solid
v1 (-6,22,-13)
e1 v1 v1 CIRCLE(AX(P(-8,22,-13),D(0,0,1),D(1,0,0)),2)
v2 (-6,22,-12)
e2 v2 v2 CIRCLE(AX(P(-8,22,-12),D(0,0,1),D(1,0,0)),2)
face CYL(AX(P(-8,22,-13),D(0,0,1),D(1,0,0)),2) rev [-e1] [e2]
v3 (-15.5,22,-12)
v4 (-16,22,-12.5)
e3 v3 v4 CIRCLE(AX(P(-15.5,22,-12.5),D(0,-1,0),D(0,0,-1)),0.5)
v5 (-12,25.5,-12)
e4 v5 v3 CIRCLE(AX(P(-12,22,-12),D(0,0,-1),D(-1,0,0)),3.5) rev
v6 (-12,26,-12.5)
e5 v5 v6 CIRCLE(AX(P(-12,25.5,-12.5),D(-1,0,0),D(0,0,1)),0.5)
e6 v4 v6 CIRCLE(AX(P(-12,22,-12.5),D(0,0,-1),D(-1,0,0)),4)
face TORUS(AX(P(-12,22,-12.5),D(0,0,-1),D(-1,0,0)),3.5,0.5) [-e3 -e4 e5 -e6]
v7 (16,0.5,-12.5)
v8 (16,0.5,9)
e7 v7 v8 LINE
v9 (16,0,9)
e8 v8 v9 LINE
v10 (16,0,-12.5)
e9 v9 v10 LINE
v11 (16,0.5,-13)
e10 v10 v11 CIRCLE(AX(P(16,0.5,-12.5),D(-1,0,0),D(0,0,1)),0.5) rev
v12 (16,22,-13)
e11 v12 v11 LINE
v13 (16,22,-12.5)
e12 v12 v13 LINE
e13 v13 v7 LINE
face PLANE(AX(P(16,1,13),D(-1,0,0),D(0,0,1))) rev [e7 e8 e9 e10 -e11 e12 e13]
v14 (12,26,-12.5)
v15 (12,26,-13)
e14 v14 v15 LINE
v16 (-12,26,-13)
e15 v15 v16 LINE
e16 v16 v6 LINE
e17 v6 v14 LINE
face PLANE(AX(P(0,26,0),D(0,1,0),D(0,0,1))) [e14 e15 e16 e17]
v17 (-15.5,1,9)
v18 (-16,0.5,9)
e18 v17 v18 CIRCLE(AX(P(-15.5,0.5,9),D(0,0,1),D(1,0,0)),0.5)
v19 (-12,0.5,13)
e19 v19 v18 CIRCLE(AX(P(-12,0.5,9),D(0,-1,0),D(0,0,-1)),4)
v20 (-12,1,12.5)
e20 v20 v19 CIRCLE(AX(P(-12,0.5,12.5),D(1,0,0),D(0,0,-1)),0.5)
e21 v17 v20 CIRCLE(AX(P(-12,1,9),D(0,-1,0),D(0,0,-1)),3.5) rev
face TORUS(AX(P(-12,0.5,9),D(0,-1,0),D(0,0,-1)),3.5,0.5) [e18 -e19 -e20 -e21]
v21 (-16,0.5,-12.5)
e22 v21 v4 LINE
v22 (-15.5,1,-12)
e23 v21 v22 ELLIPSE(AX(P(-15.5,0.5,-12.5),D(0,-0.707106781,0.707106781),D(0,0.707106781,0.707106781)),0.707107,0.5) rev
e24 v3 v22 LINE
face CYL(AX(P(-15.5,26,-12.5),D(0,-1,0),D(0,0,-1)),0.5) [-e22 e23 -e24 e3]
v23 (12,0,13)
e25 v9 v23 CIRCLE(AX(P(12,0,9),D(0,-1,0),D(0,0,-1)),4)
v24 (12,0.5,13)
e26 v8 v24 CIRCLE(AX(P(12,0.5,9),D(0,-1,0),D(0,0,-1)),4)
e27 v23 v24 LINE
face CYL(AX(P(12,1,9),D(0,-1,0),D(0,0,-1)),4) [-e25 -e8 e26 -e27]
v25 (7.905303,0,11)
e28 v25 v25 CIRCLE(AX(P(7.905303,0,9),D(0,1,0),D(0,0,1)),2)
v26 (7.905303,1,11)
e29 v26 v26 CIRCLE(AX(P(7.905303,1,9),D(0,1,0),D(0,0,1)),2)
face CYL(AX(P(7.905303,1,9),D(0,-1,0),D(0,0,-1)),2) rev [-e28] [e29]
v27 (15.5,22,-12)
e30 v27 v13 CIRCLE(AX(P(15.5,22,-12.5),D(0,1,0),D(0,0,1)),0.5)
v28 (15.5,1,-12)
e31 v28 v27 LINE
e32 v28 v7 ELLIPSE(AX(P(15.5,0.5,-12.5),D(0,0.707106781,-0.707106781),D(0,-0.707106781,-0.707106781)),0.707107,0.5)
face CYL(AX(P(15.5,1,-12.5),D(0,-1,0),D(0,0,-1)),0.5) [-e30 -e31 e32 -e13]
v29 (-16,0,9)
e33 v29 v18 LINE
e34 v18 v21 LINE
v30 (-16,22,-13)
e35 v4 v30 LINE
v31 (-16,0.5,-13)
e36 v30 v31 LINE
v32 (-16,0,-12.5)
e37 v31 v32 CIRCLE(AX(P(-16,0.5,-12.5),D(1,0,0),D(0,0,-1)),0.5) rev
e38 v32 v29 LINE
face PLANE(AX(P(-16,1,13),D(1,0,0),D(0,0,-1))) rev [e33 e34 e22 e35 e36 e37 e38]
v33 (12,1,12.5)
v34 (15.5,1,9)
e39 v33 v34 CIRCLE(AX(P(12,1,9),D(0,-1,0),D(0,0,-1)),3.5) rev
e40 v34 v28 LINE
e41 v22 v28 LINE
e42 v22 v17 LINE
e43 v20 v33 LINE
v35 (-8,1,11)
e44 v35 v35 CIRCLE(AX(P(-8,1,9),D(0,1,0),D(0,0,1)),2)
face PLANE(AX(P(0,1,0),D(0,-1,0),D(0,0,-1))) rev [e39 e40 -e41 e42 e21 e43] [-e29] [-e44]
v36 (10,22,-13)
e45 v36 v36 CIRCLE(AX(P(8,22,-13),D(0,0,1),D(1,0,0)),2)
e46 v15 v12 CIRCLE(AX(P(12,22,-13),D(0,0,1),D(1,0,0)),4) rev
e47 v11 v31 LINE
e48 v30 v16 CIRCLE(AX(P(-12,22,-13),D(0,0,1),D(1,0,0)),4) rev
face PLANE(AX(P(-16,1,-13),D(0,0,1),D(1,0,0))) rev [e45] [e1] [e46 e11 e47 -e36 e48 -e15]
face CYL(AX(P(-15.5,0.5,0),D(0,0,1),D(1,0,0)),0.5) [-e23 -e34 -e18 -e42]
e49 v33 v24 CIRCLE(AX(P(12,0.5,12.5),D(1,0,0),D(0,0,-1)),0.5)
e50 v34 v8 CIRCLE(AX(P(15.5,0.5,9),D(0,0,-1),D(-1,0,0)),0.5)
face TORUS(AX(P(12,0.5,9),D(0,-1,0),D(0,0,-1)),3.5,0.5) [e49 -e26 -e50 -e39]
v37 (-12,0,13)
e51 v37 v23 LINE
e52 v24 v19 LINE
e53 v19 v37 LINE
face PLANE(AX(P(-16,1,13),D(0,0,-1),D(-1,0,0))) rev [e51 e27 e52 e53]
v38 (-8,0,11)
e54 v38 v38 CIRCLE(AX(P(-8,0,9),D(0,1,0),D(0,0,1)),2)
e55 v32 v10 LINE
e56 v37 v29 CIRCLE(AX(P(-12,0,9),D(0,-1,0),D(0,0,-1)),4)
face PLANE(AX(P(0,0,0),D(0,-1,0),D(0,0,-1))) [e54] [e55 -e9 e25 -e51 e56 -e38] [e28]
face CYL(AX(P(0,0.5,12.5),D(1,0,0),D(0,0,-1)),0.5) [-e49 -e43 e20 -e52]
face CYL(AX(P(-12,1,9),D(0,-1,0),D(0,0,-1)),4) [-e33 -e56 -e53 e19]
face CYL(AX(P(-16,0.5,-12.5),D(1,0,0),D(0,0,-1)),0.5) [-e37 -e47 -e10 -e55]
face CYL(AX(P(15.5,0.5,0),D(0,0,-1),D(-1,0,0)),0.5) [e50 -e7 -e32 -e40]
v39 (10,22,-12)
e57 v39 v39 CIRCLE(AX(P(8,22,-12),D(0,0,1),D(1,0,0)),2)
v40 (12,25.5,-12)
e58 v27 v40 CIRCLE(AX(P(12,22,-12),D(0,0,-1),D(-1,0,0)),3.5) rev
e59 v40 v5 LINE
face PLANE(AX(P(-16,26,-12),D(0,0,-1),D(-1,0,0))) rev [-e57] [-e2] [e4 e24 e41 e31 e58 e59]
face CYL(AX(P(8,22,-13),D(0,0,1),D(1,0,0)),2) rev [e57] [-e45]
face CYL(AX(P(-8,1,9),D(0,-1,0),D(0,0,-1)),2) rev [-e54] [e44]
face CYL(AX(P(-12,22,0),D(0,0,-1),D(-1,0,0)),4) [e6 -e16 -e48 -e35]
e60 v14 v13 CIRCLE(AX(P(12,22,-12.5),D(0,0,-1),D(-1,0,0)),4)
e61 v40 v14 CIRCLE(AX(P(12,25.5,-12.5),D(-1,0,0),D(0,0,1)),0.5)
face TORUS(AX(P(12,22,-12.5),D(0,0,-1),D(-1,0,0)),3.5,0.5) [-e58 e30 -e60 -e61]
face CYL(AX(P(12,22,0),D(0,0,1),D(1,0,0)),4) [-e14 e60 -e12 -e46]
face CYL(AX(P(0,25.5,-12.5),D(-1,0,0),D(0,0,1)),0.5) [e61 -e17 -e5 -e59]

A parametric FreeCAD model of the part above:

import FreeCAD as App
import Part
import Sketcher

V = App.Vector


def edges_at(feature, points):
    """Names of the edges that pass closest to the given points."""
    edges = feature.Shape.Edges
    near = lambda p: min(range(len(edges)), key=lambda i: edges[i].distToShape(Part.Vertex(*p))[0])
    return sorted({f"Edge{near(p) + 1}" for p in points})

doc = App.newDocument("Part")
body = doc.addObject("PartDesign::Body", "Body")

sketch1 = body.newObject("Sketcher::SketchObject", "Sketch")
sketch1.AttachmentSupport = (doc.getObject("XZ_Plane"), [""])
sketch1.MapMode = "FlatFace"
sketch1.addGeometry([
    Part.LineSegment(V(-16, -13, 0), V(-16, 13, 0)),
    Part.LineSegment(V(-16, 13, 0), V(16, 13, 0)),
    Part.LineSegment(V(16, 13, 0), V(16, -13, 0)),
    Part.LineSegment(V(16, -13, 0), V(-16, -13, 0)),
    Part.Circle(V(-8, 9, 0), V(0, 0, 1), 2),
    Part.Circle(V(7.905303, 9, 0), V(0, 0, 1), 2),
], False)
sketch1.addConstraint([
    Sketcher.Constraint("Coincident", 0, 2, 1, 1),
    Sketcher.Constraint("Coincident", 1, 2, 2, 1),
    Sketcher.Constraint("Coincident", 2, 2, 3, 1),
    Sketcher.Constraint("Coincident", 3, 2, 0, 1),
    Sketcher.Constraint("Vertical", 0),
    Sketcher.Constraint("Horizontal", 1),
    Sketcher.Constraint("Vertical", 2),
    Sketcher.Constraint("Horizontal", 3),
    Sketcher.Constraint("Equal", 4, 5),
    Sketcher.Constraint("Symmetric", 0, 2, 2, 2, -1, 1),
    Sketcher.Constraint("Horizontal", 4, 3, 5, 3),
    Sketcher.Constraint("Diameter", 4, 4.0),
    Sketcher.Constraint("DistanceX", 1, 1, 1, 2, 32.0),
    Sketcher.Constraint("DistanceY", 0, 1, 0, 2, 26.0),
    Sketcher.Constraint("DistanceX", 4, 3, -1, 1, 8.0),
    Sketcher.Constraint("DistanceY", -1, 1, 4, 3, 9.0),
    Sketcher.Constraint("DistanceX", -1, 1, 5, 3, 7.905303),
])
pad1 = body.newObject("PartDesign::Pad", "Pad")
pad1.Profile = sketch1
pad1.Length = 1
pad1.Reversed = True
doc.recompute()

fillet = body.newObject("PartDesign::Fillet", "Fillet")
fillet.Base = (pad1, edges_at(pad1, [(-16, 0.5, 13)]))
fillet.Radius = 4
doc.recompute()

fillet2 = body.newObject("PartDesign::Fillet", "Fillet001")
fillet2.Base = (fillet, edges_at(fillet, [(16, 0.5, 13)]))
fillet2.Radius = 4

sketch2 = body.newObject("Sketcher::SketchObject", "Sketch001")
sketch2.AttachmentSupport = (doc.getObject("XZ_Plane"), [""])
sketch2.MapMode = "FlatFace"
sketch2.AttachmentOffset = App.Placement(V(0, 0, -1), App.Rotation())
sketch2.addGeometry([
    Part.LineSegment(V(-16, -13, 0), V(-16, -12, 0)),
    Part.LineSegment(V(-16, -12, 0), V(16, -12, 0)),
    Part.LineSegment(V(16, -12, 0), V(16, -13, 0)),
    Part.LineSegment(V(16, -13, 0), V(-16, -13, 0)),
], False)
sketch2.addConstraint([
    Sketcher.Constraint("Coincident", 0, 2, 1, 1),
    Sketcher.Constraint("Coincident", 1, 2, 2, 1),
    Sketcher.Constraint("Coincident", 2, 2, 3, 1),
    Sketcher.Constraint("Coincident", 3, 2, 0, 1),
    Sketcher.Constraint("Vertical", 0),
    Sketcher.Constraint("Horizontal", 1),
    Sketcher.Constraint("Vertical", 2),
    Sketcher.Constraint("Horizontal", 3),
    Sketcher.Constraint("DistanceX", 1, 1, 1, 2, 32.0),
    Sketcher.Constraint("DistanceY", 0, 1, 0, 2, 1.0),
    Sketcher.Constraint("DistanceX", 0, 2, -1, 1, 16.0),
    Sketcher.Constraint("DistanceY", 0, 2, -1, 1, 12.0),
])
pad2 = body.newObject("PartDesign::Pad", "Pad001")
pad2.Profile = sketch2
pad2.Length = 25
pad2.Reversed = True
doc.recompute()

fillet3 = body.newObject("PartDesign::Fillet", "Fillet002")
fillet3.Base = (pad2, edges_at(pad2, [(16, 26, -12.5)]))
fillet3.Radius = 4
doc.recompute()

fillet4 = body.newObject("PartDesign::Fillet", "Fillet003")
fillet4.Base = (fillet3, edges_at(fillet3, [(-16, 26, -12.5)]))
fillet4.Radius = 4

sketch3 = body.newObject("Sketcher::SketchObject", "Sketch002")
sketch3.AttachmentSupport = (doc.getObject("XY_Plane"), [""])
sketch3.MapMode = "FlatFace"
sketch3.AttachmentOffset = App.Placement(V(0, 0, -12), App.Rotation())
sketch3.addGeometry([
    Part.Circle(V(-8, 22, 0), V(0, 0, 1), 2),
    Part.Circle(V(8, 22, 0), V(0, 0, 1), 2),
], False)
sketch3.addConstraint([
    Sketcher.Constraint("Equal", 0, 1),
    Sketcher.Constraint("Symmetric", 0, 3, 1, 3, -2),
    Sketcher.Constraint("Diameter", 0, 4.0),
    Sketcher.Constraint("DistanceX", 0, 3, -1, 1, 8.0),
    Sketcher.Constraint("DistanceY", -1, 1, 0, 3, 22.0),
])
pocket1 = body.newObject("PartDesign::Pocket", "Pocket")
pocket1.Profile = sketch3
pocket1.Type = "ThroughAll"
doc.recompute()

fillet5 = body.newObject("PartDesign::Fillet", "Fillet004")
fillet5.Base = (pocket1, edges_at(pocket1, [
    (16, 11.5, -12),
    (14.828, 24.828, -12),
    (0, 26, -12),
    (-16, 11.5, -12),
    (-14.828, 24.828, -12),
]))
fillet5.Radius = 0.5
doc.recompute()

fillet6 = body.newObject("PartDesign::Fillet", "Fillet005")
fillet6.Base = (fillet5, edges_at(fillet5, [
    (16, 1, -1.75),
    (14.828, 1, 11.828),
    (0, 1, 13),
    (-14.828, 1, 11.828),
    (-16, 1, -1.75),
]))
fillet6.Radius = 0.5
doc.recompute()

fillet7 = body.newObject("PartDesign::Fillet", "Fillet006")
fillet7.Base = (fillet6, edges_at(fillet6, [(0, 0, -13)]))
fillet7.Radius = 0.5

doc.recompute()
